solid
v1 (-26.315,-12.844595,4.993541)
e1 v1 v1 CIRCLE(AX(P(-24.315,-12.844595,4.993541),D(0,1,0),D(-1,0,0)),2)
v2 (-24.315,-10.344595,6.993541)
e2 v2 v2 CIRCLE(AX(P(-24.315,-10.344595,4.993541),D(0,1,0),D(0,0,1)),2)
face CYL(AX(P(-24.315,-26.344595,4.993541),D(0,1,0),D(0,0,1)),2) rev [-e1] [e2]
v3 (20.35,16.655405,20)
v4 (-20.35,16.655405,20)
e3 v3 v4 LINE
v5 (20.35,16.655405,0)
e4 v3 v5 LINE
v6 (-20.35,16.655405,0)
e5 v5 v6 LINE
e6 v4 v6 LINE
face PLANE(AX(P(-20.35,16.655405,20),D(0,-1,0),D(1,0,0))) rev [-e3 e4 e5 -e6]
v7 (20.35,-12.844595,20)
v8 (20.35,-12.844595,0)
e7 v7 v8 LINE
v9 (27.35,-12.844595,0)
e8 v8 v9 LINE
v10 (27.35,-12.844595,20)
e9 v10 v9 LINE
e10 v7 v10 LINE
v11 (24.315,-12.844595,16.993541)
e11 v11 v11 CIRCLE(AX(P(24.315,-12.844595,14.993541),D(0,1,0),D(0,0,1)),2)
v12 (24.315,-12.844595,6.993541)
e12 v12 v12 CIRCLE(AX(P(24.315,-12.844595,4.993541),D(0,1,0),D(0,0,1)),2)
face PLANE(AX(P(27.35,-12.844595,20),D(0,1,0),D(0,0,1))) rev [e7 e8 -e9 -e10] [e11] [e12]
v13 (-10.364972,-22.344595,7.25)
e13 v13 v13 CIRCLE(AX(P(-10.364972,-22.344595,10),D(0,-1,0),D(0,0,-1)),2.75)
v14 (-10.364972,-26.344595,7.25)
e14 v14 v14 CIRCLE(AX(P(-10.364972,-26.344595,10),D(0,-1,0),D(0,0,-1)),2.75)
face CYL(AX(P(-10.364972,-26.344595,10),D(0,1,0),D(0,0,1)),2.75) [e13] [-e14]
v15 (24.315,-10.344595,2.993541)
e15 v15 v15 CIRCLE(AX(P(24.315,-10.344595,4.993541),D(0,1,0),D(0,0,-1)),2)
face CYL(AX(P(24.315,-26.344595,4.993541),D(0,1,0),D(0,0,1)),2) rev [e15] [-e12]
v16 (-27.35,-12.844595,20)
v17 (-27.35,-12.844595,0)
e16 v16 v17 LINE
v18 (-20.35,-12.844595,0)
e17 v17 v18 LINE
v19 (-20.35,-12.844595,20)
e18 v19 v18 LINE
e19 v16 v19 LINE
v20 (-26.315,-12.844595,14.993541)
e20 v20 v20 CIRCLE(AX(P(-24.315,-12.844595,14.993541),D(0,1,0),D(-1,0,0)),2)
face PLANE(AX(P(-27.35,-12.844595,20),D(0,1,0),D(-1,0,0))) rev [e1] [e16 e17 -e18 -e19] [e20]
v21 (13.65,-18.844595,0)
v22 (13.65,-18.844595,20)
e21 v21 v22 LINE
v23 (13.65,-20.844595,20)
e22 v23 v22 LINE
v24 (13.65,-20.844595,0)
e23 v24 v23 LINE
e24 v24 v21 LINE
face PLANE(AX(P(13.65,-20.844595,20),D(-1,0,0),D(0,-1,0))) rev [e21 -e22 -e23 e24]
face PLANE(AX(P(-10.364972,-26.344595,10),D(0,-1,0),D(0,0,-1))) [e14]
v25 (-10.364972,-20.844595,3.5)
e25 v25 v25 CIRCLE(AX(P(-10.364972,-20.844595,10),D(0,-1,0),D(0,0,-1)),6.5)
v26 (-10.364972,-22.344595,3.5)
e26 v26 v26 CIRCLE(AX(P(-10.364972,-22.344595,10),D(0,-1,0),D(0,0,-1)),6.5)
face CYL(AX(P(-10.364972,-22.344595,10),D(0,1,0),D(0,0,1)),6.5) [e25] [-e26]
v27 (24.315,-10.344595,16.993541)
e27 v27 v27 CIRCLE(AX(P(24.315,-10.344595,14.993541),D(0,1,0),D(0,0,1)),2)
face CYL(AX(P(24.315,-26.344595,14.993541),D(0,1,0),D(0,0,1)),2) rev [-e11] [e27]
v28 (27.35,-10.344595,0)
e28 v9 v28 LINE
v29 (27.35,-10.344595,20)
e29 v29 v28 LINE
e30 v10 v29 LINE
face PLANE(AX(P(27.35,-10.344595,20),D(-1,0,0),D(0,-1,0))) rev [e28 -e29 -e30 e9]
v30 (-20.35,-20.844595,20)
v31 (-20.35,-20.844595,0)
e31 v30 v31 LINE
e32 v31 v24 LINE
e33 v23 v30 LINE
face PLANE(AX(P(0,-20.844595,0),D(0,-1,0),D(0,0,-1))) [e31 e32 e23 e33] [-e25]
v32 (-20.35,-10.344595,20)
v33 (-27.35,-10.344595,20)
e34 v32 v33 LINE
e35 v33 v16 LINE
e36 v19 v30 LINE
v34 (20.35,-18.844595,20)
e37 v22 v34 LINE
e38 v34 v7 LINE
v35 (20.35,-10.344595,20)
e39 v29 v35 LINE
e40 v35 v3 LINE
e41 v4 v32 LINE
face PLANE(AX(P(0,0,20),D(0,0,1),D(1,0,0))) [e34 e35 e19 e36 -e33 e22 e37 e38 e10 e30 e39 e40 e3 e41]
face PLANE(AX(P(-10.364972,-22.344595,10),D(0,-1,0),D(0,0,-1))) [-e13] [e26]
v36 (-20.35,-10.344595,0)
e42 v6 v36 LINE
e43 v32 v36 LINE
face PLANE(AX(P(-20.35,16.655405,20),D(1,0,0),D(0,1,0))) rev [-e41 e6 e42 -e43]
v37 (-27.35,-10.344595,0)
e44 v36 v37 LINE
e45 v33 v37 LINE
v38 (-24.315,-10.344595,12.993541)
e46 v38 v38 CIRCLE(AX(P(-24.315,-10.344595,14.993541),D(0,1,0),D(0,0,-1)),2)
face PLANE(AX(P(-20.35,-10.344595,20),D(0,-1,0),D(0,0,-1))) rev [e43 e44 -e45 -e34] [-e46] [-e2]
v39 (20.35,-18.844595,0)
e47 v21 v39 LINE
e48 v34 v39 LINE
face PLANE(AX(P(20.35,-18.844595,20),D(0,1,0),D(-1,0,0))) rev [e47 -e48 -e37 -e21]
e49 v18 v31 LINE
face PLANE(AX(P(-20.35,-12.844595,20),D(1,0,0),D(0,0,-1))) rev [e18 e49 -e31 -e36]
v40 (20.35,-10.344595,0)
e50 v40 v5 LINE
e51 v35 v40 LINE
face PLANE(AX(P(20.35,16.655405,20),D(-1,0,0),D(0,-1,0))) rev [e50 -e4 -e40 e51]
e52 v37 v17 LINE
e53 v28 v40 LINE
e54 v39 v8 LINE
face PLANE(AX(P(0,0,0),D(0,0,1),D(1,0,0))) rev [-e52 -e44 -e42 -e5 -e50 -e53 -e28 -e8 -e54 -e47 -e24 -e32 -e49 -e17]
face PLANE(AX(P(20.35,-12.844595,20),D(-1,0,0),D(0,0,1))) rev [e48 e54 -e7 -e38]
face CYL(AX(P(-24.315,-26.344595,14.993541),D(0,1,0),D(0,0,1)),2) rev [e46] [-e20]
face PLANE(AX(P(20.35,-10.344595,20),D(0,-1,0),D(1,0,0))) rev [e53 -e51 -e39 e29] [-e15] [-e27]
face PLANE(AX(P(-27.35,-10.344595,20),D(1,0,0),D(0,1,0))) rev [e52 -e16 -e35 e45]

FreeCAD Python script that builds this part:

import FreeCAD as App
import Part
import Sketcher
from FreeCAD import Vector


def add_polygon(sketch, points):
    """Adds a closed chain of lines whose ends are joined by coincident constraints."""
    first, n = sketch.GeometryCount, len(points)
    for a, b in zip(points, points[1:] + points[:1]):
        sketch.addGeometry(Part.LineSegment(App.Vector(*a, 0), App.Vector(*b, 0)), False)
    for i in range(n):
        sketch.addConstraint(Sketcher.Constraint("Coincident", first + i, 2, first + (i + 1) % n, 1))

doc = App.newDocument("Part")
params = doc.addObject("Spreadsheet::Sheet", "Params")
for row, (alias, value) in enumerate([
    ("sketch1_width", "7 mm"),
    ("sketch1_height", "27 mm"),
    ("sketch1_height2", "6 mm"),
    ("sketch1_width2", "40.7 mm"),
    ("sketch1_height3", "2.5 mm"),
    ("pad1_length", "20 mm"),
    ("sketch2_width", "34 mm"),
    ("sketch2_height", "20 mm"),
    ("pad2_length", "2 mm"),
    ("sketch3_diameter", "13 mm"),
    ("pad3_length", "1.5 mm"),
    ("sketch4_diameter", "5.5 mm"),
    ("pad4_length", "4 mm"),
    ("sketch5_diameter", "4 mm"),
], start=1):
    params.set(f"A{row}", alias)
    params.set(f"B{row}", "=" + value)
    params.setAlias(f"B{row}", alias)

body = doc.addObject("PartDesign::Body", "Body")

sketch1 = body.newObject("Sketcher::SketchObject", "Sketch")
sketch1.AttachmentSupport = (doc.getObject("XY_Plane"), [""])
sketch1.MapMode = "FlatFace"
add_polygon(sketch1, [(20.4, 16.7), (-20.4, 16.7), (-20.4, -10.3), (-27.4, -10.3), (-27.4, -12.8), (-20.4, -12.8), (-20.4, -18.8), (20.4, -18.8), (20.4, -12.8), (27.4, -12.8), (27.4, -10.3), (20.4, -10.3)])
sketch1.addConstraint(Sketcher.Constraint("Horizontal", 0))
sketch1.addConstraint(Sketcher.Constraint("Vertical", 1))
sketch1.addConstraint(Sketcher.Constraint("Horizontal", 2))
sketch1.addConstraint(Sketcher.Constraint("Vertical", 3))
sketch1.addConstraint(Sketcher.Constraint("Horizontal", 4))
sketch1.addConstraint(Sketcher.Constraint("Vertical", 5))
sketch1.addConstraint(Sketcher.Constraint("Horizontal", 6))
sketch1.addConstraint(Sketcher.Constraint("Vertical", 7))
sketch1.addConstraint(Sketcher.Constraint("Horizontal", 8))
sketch1.addConstraint(Sketcher.Constraint("Vertical", 9))
sketch1.addConstraint(Sketcher.Constraint("Horizontal", 10))
sketch1.addConstraint(Sketcher.Constraint("Vertical", 11))
sketch1.addConstraint(Sketcher.Constraint("Symmetric", 4, 2, 7, 2, -2))
sketch1.addConstraint(Sketcher.Constraint("Symmetric", 2, 2, 9, 2, -2))
sketch1.addConstraint(Sketcher.Constraint("Vertical", 1, 2, 4, 2))
sketch1.addConstraint(Sketcher.Constraint("Vertical", 7, 2, 10, 2))
sketch1.addConstraint(Sketcher.Constraint("DistanceX", 2, 2, 2, 1, 7.0))
sketch1.addConstraint(Sketcher.Constraint("DistanceY", 1, 2, 1, 1, 27.0))
sketch1.addConstraint(Sketcher.Constraint("DistanceY", 5, 2, 5, 1, 6.0))
sketch1.addConstraint(Sketcher.Constraint("DistanceX", 0, 2, 0, 1, 40.7))
sketch1.addConstraint(Sketcher.Constraint("DistanceY", 3, 2, 3, 1, 2.5))
sketch1.addConstraint(Sketcher.Constraint("DistanceY", -1, 1, 0, 2, 16.655405))
sketch1.setExpression("Constraints[28]", "Params.sketch1_width")
sketch1.setExpression("Constraints[29]", "Params.sketch1_height")
sketch1.setExpression("Constraints[30]", "Params.sketch1_height2")
sketch1.setExpression("Constraints[31]", "Params.sketch1_width2")
sketch1.setExpression("Constraints[32]", "Params.sketch1_height3")
pad1 = body.newObject("PartDesign::Pad", "Pad")
pad1.Profile = sketch1
pad1.setExpression("Length", "Params.pad1_length")

sketch2 = body.newObject("Sketcher::SketchObject", "Sketch001")
sketch2.AttachmentSupport = (doc.getObject("XZ_Plane"), [""])
sketch2.MapMode = "FlatFace"
sketch2.AttachmentOffset = App.Placement(Vector(0, 0, 18.844595), App.Rotation())
add_polygon(sketch2, [(-20, 20), (-20, 0), (14, 0), (14, 20)])
sketch2.addConstraint(Sketcher.Constraint("Vertical", 0))
sketch2.addConstraint(Sketcher.Constraint("Horizontal", 1))
sketch2.addConstraint(Sketcher.Constraint("Vertical", 2))
sketch2.addConstraint(Sketcher.Constraint("Horizontal", 3))
sketch2.addConstraint(Sketcher.Constraint("PointOnObject", 0, 2, -1))
sketch2.addConstraint(Sketcher.Constraint("DistanceX", 1, 1, 1, 2, 34.0))
sketch2.addConstraint(Sketcher.Constraint("DistanceY", 0, 2, 0, 1, 20.0))
sketch2.addConstraint(Sketcher.Constraint("DistanceX", 0, 2, -1, 1, 20.35))
sketch2.setExpression("Constraints[9]", "Params.sketch2_width")
sketch2.setExpression("Constraints[10]", "Params.sketch2_height")
pad2 = body.newObject("PartDesign::Pad", "Pad001")
pad2.Profile = sketch2
pad2.setExpression("Length", "Params.pad2_length")

sketch3 = body.newObject("Sketcher::SketchObject", "Sketch002")
sketch3.AttachmentSupport = (doc.getObject("XZ_Plane"), [""])
sketch3.MapMode = "FlatFace"
sketch3.AttachmentOffset = App.Placement(Vector(0, 0, 20.844595), App.Rotation())
sketch3.addGeometry(Part.Circle(Vector(-10, 10, 0), Vector(0, 0, 1), 6), False)
sketch3.addConstraint(Sketcher.Constraint("Diameter", 0, 13.0))
sketch3.addConstraint(Sketcher.Constraint("DistanceY", -1, 1, 0, 3, 10.0))
sketch3.addConstraint(Sketcher.Constraint("DistanceX", 0, 3, -1, 1, 10.364972))
sketch3.setExpression("Constraints[0]", "Params.sketch3_diameter")
pad3 = body.newObject("PartDesign::Pad", "Pad002")
pad3.Profile = sketch3
pad3.setExpression("Length", "Params.pad3_length")

sketch4 = body.newObject("Sketcher::SketchObject", "Sketch003")
sketch4.AttachmentSupport = (doc.getObject("XZ_Plane"), [""])
sketch4.MapMode = "FlatFace"
sketch4.AttachmentOffset = App.Placement(Vector(0, 0, 22.344595), App.Rotation())
sketch4.addGeometry(Part.Circle(Vector(-10.4, 10, 0), Vector(0, 0, 1), 2.8), False)
sketch4.addConstraint(Sketcher.Constraint("Diameter", 0, 5.5))
sketch4.addConstraint(Sketcher.Constraint("DistanceY", -1, 1, 0, 3, 10.0))
sketch4.addConstraint(Sketcher.Constraint("DistanceX", 0, 3, -1, 1, 10.364972))
sketch4.setExpression("Constraints[0]", "Params.sketch4_diameter")
pad4 = body.newObject("PartDesign::Pad", "Pad003")
pad4.Profile = sketch4
pad4.setExpression("Length", "Params.pad4_length")

sketch5 = body.newObject("Sketcher::SketchObject", "Sketch004")
sketch5.AttachmentSupport = (doc.getObject("XZ_Plane"), [""])
sketch5.MapMode = "FlatFace"
sketch5.AttachmentOffset = App.Placement(Vector(0, 0, 10.344595), App.Rotation())
sketch5.addGeometry(Part.Circle(Vector(-24.3, 5, 0), Vector(0, 0, 1), 2), False)
sketch5.addGeometry(Part.Circle(Vector(24.3, 5, 0), Vector(0, 0, 1), 2), False)
sketch5.addGeometry(Part.Circle(Vector(24.3, 15, 0), Vector(0, 0, 1), 2), False)
sketch5.addGeometry(Part.Circle(Vector(-24.3, 15, 0), Vector(0, 0, 1), 2), False)
sketch5.addConstraint(Sketcher.Constraint("Equal", 0, 1))
sketch5.addConstraint(Sketcher.Constraint("Equal", 1, 2))
sketch5.addConstraint(Sketcher.Constraint("Equal", 2, 3))
sketch5.addConstraint(Sketcher.Constraint("Symmetric", 0, 3, 1, 3, -2))
sketch5.addConstraint(Sketcher.Constraint("Symmetric", 2, 3, 3, 3, -2))
sketch5.addConstraint(Sketcher.Constraint("Vertical", 1, 3, 2, 3))
sketch5.addConstraint(Sketcher.Constraint("Diameter", 0, 4.0))
sketch5.addConstraint(Sketcher.Constraint("DistanceY", 1, 3, 2, 3, 10.0))
sketch5.addConstraint(Sketcher.Constraint("DistanceX", 0, 3, 1, 3, 48.63))
sketch5.addConstraint(Sketcher.Constraint("DistanceY", -1, 1, 0, 3, 4.993541))
sketch5.setExpression("Constraints[6]", "Params.sketch5_diameter")
pocket1 = body.newObject("PartDesign::Pocket", "Pocket")
pocket1.Profile = sketch5
pocket1.Type = "ThroughAll"
pocket1.Reversed = True

doc.recompute()
